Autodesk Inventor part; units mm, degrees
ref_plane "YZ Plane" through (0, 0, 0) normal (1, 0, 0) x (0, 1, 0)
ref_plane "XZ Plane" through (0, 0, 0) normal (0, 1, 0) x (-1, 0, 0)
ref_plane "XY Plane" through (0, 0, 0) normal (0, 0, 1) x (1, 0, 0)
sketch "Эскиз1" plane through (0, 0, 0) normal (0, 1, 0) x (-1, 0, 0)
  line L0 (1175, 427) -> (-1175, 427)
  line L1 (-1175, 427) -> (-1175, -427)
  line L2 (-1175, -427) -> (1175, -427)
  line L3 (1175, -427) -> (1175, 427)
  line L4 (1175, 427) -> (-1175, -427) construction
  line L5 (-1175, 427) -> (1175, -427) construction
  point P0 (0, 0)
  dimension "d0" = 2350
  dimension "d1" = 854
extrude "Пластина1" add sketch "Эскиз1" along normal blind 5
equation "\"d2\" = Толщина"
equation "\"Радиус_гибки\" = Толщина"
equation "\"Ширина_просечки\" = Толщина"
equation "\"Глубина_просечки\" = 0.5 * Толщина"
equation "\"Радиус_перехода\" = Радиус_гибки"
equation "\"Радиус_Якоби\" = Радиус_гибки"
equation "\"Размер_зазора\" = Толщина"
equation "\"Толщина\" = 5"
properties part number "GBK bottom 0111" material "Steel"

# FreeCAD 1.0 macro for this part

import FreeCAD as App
import Part
import Sketcher
from FreeCAD import Vector


def add_polygon(sketch, points):
    """Adds a closed chain of lines whose ends are joined by coincident constraints."""
    first, n = sketch.GeometryCount, len(points)
    for a, b in zip(points, points[1:] + points[:1]):
        sketch.addGeometry(Part.LineSegment(App.Vector(*a, 0), App.Vector(*b, 0)), False)
    for i in range(n):
        sketch.addConstraint(Sketcher.Constraint("Coincident", first + i, 2, first + (i + 1) % n, 1))

doc = App.newDocument("Part")
params = doc.addObject("Spreadsheet::Sheet", "Params")
for row, (alias, value) in enumerate([
    ("sketch1_width", "2350 mm"),
    ("sketch1_height", "854 mm"),
    ("pad1_length", "5 mm"),
], start=1):
    params.set(f"A{row}", alias)
    params.set(f"B{row}", "=" + value)
    params.setAlias(f"B{row}", alias)

body = doc.addObject("PartDesign::Body", "Body")

# Sketch on XZ plane
sketch1 = body.newObject("Sketcher::SketchObject", "Sketch")
sketch1.AttachmentSupport = (doc.getObject("XZ_Plane"), [""])
sketch1.MapMode = "FlatFace"
add_polygon(sketch1, [(-1175, -427), (-1175, 427), (1175, 427), (1175, -427)])  # lines 0-3
sketch1.addConstraint([
    Sketcher.Constraint("Vertical", 0),
    Sketcher.Constraint("Horizontal", 1),
    Sketcher.Constraint("Vertical", 2),
    Sketcher.Constraint("Horizontal", 3),
    Sketcher.Constraint("Symmetric", 0, 2, 2, 2, -1, 1),
    Sketcher.Constraint("DistanceX", 1, 1, 1, 2, 2350.0),
    Sketcher.Constraint("DistanceY", 0, 1, 0, 2, 854.0),
])
sketch1.setExpression("Constraints[9]", "Params.sketch1_width")
sketch1.setExpression("Constraints[10]", "Params.sketch1_height")
pad1 = body.newObject("PartDesign::Pad", "Pad")
pad1.Profile = sketch1
pad1.setExpression("Length", "Params.pad1_length")
pad1.Reversed = True

doc.recompute()
